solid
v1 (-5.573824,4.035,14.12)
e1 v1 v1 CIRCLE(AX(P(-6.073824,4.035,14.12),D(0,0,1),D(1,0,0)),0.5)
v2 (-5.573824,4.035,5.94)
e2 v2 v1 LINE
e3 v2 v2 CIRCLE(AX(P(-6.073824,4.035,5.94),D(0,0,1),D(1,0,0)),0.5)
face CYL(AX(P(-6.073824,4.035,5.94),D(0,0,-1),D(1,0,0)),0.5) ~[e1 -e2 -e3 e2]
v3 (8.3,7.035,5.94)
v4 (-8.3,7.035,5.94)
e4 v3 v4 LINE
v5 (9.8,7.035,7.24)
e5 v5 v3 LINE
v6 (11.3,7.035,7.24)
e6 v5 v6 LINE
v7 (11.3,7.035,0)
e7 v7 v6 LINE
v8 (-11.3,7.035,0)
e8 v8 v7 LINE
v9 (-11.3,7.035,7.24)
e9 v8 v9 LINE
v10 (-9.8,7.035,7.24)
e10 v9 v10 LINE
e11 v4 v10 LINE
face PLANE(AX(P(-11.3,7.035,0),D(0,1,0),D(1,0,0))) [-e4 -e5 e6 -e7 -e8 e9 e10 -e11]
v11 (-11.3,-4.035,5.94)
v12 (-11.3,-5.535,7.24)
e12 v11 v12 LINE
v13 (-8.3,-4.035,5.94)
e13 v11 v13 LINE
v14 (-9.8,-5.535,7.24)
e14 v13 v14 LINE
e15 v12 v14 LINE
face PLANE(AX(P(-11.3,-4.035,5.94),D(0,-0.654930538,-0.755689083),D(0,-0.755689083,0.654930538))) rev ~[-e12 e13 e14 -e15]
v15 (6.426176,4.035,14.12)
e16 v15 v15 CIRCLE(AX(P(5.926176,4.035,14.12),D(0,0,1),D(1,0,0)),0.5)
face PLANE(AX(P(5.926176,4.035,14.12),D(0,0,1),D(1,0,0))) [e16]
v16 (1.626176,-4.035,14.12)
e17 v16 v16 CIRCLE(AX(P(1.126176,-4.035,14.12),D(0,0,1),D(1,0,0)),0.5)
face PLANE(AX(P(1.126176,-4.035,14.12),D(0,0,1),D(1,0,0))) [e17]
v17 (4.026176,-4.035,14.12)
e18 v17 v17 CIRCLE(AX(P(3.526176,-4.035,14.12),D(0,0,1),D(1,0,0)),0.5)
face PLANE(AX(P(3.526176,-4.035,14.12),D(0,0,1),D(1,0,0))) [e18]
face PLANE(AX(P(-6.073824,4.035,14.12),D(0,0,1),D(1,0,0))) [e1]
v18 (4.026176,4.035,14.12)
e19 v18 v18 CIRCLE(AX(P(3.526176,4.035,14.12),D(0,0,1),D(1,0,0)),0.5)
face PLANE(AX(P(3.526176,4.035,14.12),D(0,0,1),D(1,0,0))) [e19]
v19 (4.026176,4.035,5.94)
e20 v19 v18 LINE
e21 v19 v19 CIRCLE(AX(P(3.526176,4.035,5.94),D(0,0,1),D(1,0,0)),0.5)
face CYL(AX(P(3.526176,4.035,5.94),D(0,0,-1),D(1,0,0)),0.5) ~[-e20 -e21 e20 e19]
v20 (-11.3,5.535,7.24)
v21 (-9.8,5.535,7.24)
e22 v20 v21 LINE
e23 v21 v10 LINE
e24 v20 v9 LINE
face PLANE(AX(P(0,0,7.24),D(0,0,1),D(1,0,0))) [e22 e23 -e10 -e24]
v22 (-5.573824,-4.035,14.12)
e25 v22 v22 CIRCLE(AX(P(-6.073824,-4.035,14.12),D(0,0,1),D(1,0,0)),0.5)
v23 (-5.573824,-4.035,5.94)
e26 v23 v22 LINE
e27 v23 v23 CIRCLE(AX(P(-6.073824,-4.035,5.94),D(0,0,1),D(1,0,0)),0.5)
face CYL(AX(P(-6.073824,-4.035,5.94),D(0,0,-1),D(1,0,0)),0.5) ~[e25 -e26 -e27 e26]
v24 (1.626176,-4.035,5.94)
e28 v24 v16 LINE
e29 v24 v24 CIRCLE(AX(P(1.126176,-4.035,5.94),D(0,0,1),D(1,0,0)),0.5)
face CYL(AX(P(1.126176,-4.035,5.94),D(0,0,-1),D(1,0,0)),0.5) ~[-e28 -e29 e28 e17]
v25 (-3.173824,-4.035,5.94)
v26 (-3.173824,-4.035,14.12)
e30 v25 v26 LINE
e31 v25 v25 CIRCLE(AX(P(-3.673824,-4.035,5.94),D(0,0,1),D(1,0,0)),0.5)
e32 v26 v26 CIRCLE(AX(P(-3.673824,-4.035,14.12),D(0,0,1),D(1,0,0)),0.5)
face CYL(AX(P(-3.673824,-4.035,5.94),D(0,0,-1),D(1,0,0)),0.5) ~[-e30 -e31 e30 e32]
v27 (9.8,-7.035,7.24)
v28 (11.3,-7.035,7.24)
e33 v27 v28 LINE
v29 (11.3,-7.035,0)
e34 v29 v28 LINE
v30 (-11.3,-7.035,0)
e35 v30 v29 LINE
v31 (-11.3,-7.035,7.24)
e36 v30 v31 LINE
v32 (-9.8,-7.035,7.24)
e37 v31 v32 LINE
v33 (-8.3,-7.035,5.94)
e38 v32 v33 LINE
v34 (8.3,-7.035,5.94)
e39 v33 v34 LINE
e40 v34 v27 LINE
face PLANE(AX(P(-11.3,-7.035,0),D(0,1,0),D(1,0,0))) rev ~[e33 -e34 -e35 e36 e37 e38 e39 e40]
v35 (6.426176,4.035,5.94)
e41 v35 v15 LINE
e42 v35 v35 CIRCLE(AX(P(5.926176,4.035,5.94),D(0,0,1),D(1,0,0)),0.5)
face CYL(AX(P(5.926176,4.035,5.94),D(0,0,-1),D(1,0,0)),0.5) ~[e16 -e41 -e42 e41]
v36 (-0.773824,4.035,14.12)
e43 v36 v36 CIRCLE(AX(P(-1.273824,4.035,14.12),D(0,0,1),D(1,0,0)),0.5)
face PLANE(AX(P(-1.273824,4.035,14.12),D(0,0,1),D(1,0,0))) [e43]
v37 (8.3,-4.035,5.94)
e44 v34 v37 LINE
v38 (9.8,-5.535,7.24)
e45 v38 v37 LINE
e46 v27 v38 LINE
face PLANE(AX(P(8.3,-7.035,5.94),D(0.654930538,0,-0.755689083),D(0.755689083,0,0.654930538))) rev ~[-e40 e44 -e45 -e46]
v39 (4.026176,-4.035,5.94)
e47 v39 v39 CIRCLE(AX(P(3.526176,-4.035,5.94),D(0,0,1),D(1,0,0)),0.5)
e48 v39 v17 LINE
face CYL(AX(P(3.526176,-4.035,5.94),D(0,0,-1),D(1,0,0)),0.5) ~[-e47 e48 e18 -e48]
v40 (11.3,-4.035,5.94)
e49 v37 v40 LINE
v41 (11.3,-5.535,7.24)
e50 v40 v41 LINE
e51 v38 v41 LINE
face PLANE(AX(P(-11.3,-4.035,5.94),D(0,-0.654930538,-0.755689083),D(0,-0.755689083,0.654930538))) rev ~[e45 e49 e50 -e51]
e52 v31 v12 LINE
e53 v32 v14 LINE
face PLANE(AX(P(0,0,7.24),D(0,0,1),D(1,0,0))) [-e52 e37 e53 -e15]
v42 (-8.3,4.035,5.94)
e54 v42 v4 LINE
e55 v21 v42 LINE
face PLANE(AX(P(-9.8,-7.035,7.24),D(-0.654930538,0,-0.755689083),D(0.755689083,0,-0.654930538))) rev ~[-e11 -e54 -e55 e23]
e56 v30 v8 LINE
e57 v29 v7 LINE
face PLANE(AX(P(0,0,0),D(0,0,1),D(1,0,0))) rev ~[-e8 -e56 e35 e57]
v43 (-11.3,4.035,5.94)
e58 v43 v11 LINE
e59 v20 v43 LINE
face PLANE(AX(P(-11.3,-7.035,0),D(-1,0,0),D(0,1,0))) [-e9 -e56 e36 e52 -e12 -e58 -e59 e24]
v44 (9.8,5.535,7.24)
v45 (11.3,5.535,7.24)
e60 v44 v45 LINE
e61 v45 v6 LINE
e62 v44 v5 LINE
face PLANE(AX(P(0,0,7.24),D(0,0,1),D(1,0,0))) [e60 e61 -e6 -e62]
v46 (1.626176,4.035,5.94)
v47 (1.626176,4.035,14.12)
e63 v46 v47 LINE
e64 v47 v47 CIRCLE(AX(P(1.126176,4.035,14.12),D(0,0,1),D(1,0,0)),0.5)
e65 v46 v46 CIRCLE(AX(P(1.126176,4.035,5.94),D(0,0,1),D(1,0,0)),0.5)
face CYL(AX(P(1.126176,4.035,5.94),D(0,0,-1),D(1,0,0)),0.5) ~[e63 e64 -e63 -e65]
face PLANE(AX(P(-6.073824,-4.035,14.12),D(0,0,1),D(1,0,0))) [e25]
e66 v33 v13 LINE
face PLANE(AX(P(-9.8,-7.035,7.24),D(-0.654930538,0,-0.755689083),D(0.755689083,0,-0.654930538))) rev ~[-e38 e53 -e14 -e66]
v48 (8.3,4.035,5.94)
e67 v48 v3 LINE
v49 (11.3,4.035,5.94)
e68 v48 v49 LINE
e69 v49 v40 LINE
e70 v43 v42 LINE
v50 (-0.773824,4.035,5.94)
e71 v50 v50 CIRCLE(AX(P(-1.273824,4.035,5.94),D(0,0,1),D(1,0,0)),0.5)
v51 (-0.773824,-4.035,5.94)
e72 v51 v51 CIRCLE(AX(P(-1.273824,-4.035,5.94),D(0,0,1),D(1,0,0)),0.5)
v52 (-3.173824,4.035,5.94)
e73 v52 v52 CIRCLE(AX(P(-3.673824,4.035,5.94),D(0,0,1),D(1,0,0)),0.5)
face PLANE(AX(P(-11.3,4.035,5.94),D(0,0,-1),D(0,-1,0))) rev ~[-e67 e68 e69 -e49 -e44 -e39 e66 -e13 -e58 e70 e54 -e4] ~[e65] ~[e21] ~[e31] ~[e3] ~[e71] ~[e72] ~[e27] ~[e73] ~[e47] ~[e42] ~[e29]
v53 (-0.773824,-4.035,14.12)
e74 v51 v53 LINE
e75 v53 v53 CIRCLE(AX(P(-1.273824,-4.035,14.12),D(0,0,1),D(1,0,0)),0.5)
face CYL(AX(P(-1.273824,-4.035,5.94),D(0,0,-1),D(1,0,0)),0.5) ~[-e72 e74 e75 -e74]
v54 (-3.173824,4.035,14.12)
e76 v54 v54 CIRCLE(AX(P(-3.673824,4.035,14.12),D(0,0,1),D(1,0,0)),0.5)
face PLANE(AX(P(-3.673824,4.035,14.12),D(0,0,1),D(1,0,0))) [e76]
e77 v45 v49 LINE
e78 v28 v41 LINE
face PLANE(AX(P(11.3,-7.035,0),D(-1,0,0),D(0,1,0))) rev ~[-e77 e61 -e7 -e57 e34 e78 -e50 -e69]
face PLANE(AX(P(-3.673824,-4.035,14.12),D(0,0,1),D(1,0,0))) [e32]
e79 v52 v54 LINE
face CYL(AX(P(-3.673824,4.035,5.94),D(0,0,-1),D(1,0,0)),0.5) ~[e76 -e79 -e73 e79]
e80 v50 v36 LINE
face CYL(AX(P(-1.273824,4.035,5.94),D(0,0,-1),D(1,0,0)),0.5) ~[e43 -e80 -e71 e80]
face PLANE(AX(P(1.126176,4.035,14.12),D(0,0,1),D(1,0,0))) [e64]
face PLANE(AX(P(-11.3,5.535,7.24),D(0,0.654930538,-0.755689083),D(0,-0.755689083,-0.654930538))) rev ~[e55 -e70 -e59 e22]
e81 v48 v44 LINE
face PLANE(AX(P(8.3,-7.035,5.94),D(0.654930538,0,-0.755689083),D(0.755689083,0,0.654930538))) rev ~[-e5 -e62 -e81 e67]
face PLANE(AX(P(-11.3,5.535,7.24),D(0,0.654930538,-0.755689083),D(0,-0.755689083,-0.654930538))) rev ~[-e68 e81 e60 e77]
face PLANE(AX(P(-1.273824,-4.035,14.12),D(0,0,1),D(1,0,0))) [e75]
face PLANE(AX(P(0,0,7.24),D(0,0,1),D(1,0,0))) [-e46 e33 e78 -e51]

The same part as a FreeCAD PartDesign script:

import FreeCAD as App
import Part
import Sketcher

V = App.Vector

doc = App.newDocument("Part")
body = doc.addObject("PartDesign::Body", "Body")

# Sketch on XY plane
sketch1 = body.newObject("Sketcher::SketchObject", "Sketch")
sketch1.AttachmentSupport = (doc.getObject("XY_Plane"), [""])
sketch1.MapMode = "FlatFace"
sketch1.addGeometry([
    Part.LineSegment(V(-11, 7, 0), V(-11, -7, 0)),
    Part.LineSegment(V(-11, -7, 0), V(11, -7, 0)),
    Part.LineSegment(V(11, -7, 0), V(11, 7, 0)),
    Part.LineSegment(V(11, 7, 0), V(-11, 7, 0)),
], False)
sketch1.addConstraint([
    Sketcher.Constraint("Coincident", 0, 2, 1, 1),
    Sketcher.Constraint("Coincident", 1, 2, 2, 1),
    Sketcher.Constraint("Coincident", 2, 2, 3, 1),
    Sketcher.Constraint("Coincident", 3, 2, 0, 1),
    Sketcher.Constraint("Vertical", 0),
    Sketcher.Constraint("Horizontal", 1),
    Sketcher.Constraint("Vertical", 2),
    Sketcher.Constraint("Horizontal", 3),
    Sketcher.Constraint("Symmetric", 0, 2, 2, 2, -1, 1),
    Sketcher.Constraint("DistanceX", 1, 1, 1, 2, 22.6),
    Sketcher.Constraint("DistanceY", 0, 2, 0, 1, 14.07),
])
pad1 = body.newObject("PartDesign::Pad", "Pad")
pad1.Profile = sketch1
pad1.Length = 7.24

# Sketch on XZ plane
sketch2 = body.newObject("Sketcher::SketchObject", "Sketch001")
sketch2.AttachmentSupport = (doc.getObject("XZ_Plane"), [""])
sketch2.MapMode = "FlatFace"
sketch2.AttachmentOffset = App.Placement(V(0, 0, 7.035), App.Rotation())
sketch2.addGeometry([
    Part.LineSegment(V(-9.8, 7.2, 0), V(-8.3, 5.9, 0)),
    Part.LineSegment(V(-8.3, 5.9, 0), V(8.3, 5.9, 0)),
    Part.LineSegment(V(8.3, 5.9, 0), V(9.8, 7.2, 0)),
    Part.LineSegment(V(9.8, 7.2, 0), V(-9.8, 7.2, 0)),
], False)
sketch2.addConstraint([
    Sketcher.Constraint("Coincident", 0, 2, 1, 1),
    Sketcher.Constraint("Coincident", 1, 2, 2, 1),
    Sketcher.Constraint("Coincident", 2, 2, 3, 1),
    Sketcher.Constraint("Coincident", 3, 2, 0, 1),
    Sketcher.Constraint("Horizontal", 1),
    Sketcher.Constraint("Horizontal", 3),
    Sketcher.Constraint("Equal", 0, 2),
    Sketcher.Constraint("DistanceX", 1, 1, 1, 2, 16.6),
    Sketcher.Constraint("DistanceX", 3, 2, 3, 1, 19.6),
    Sketcher.Constraint("DistanceX", 0, 2, -1, 1, 8.3),
    Sketcher.Constraint("DistanceY", 1, 2, 2, 2, 1.3),
    Sketcher.Constraint("DistanceY", -1, 1, 0, 2, 5.94),
])
pocket1 = body.newObject("PartDesign::Pocket", "Pocket")
pocket1.Profile = sketch2
pocket1.Length = 25

# Sketch on YZ plane
sketch3 = body.newObject("Sketcher::SketchObject", "Sketch002")
sketch3.AttachmentSupport = (doc.getObject("YZ_Plane"), [""])
sketch3.MapMode = "FlatFace"
sketch3.AttachmentOffset = App.Placement(V(0, 0, -11.3), App.Rotation())
sketch3.addGeometry([
    Part.LineSegment(V(5.5, 7.2, 0), V(4, 5.9, 0)),
    Part.LineSegment(V(4, 5.9, 0), V(-4, 5.9, 0)),
    Part.LineSegment(V(-4, 5.9, 0), V(-5.5, 7.2, 0)),
    Part.LineSegment(V(-5.5, 7.2, 0), V(5.5, 7.2, 0)),
], False)
sketch3.addConstraint([
    Sketcher.Constraint("Coincident", 0, 2, 1, 1),
    Sketcher.Constraint("Coincident", 1, 2, 2, 1),
    Sketcher.Constraint("Coincident", 2, 2, 3, 1),
    Sketcher.Constraint("Coincident", 3, 2, 0, 1),
    Sketcher.Constraint("Horizontal", 1),
    Sketcher.Constraint("Horizontal", 3),
    Sketcher.Constraint("Equal", 0, 2),
    Sketcher.Constraint("DistanceX", 1, 2, 1, 1, 8.07),
    Sketcher.Constraint("DistanceX", 3, 1, 3, 2, 11.07),
    Sketcher.Constraint("DistanceY", 1, 2, 2, 2, 1.3),
    Sketcher.Constraint("DistanceY", -1, 1, 0, 2, 5.94),
    Sketcher.Constraint("DistanceX", -1, 1, 0, 2, 4.035),
])
pocket2 = body.newObject("PartDesign::Pocket", "Pocket001")
pocket2.Profile = sketch3
pocket2.Length = 25
pocket2.Reversed = True

# Sketch on XY plane
sketch4 = body.newObject("Sketcher::SketchObject", "Sketch003")
sketch4.AttachmentSupport = (doc.getObject("XY_Plane"), [""])
sketch4.MapMode = "FlatFace"
sketch4.AttachmentOffset = App.Placement(V(0, 0, 5.94), App.Rotation())
sketch4.addGeometry([
    Part.Circle(V(-6.1, -4, 0), V(0, 0, 1), 0.5),  # 0
    Part.Circle(V(-6.1, 4, 0), V(0, 0, 1), 0.5),  # 1
    Part.Circle(V(-3.7, 4, 0), V(0, 0, 1), 0.5),  # 2
    Part.Circle(V(-1.3, 4, 0), V(0, 0, 1), 0.5),  # 3
    Part.Circle(V(1.1, 4, 0), V(0, 0, 1), 0.5),  # 4
    Part.Circle(V(3.5, 4, 0), V(0, 0, 1), 0.5),  # 5
    Part.Circle(V(5.9, 4, 0), V(0, 0, 1), 0.5),  # 6
    Part.Circle(V(-3.7, -4, 0), V(0, 0, 1), 0.5),  # 7
    Part.Circle(V(-1.3, -4, 0), V(0, 0, 1), 0.5),  # 8
    Part.Circle(V(1.1, -4, 0), V(0, 0, 1), 0.5),  # 9
    Part.Circle(V(3.5, -4, 0), V(0, 0, 1), 0.5),  # 10
], False)
sketch4.addConstraint([
    Sketcher.Constraint("Equal", 0, 1),
    Sketcher.Constraint("Equal", 1, 2),
    Sketcher.Constraint("Equal", 2, 3),
    Sketcher.Constraint("Equal", 3, 4),
    Sketcher.Constraint("Equal", 4, 5),
    Sketcher.Constraint("Equal", 5, 6),
    Sketcher.Constraint("Equal", 6, 7),
    Sketcher.Constraint("Equal", 7, 8),
    Sketcher.Constraint("Equal", 8, 9),
    Sketcher.Constraint("Equal", 9, 10),
    Sketcher.Constraint("Symmetric", 0, 3, 1, 3, -1),
    Sketcher.Constraint("Symmetric", 2, 3, 7, 3, -1),
    Sketcher.Constraint("Symmetric", 3, 3, 8, 3, -1),
    Sketcher.Constraint("Symmetric", 4, 3, 9, 3, -1),
    Sketcher.Constraint("Symmetric", 5, 3, 10, 3, -1),
    Sketcher.Constraint("Horizontal", 1, 3, 2, 3),
    Sketcher.Constraint("Horizontal", 2, 3, 3, 3),
    Sketcher.Constraint("Horizontal", 3, 3, 4, 3),
    Sketcher.Constraint("Horizontal", 4, 3, 5, 3),
    Sketcher.Constraint("Horizontal", 5, 3, 6, 3),
    Sketcher.Constraint("Diameter", 0, 1.0),
    Sketcher.Constraint("DistanceX", 1, 3, 6, 3, 12.0),
    Sketcher.Constraint("DistanceX", 1, 3, 2, 3, 2.4),
    Sketcher.Constraint("DistanceX", 2, 3, 3, 3, 2.4),
    Sketcher.Constraint("DistanceX", 3, 3, 4, 3, 2.4),
    Sketcher.Constraint("DistanceX", 4, 3, 5, 3, 2.4),
    Sketcher.Constraint("DistanceY", 0, 3, 1, 3, 8.07),
    Sketcher.Constraint("DistanceX", 0, 3, -1, 1, 6.073824),
])
pad2 = body.newObject("PartDesign::Pad", "Pad001")
pad2.Profile = sketch4
pad2.Length = 8.18

doc.recompute()
